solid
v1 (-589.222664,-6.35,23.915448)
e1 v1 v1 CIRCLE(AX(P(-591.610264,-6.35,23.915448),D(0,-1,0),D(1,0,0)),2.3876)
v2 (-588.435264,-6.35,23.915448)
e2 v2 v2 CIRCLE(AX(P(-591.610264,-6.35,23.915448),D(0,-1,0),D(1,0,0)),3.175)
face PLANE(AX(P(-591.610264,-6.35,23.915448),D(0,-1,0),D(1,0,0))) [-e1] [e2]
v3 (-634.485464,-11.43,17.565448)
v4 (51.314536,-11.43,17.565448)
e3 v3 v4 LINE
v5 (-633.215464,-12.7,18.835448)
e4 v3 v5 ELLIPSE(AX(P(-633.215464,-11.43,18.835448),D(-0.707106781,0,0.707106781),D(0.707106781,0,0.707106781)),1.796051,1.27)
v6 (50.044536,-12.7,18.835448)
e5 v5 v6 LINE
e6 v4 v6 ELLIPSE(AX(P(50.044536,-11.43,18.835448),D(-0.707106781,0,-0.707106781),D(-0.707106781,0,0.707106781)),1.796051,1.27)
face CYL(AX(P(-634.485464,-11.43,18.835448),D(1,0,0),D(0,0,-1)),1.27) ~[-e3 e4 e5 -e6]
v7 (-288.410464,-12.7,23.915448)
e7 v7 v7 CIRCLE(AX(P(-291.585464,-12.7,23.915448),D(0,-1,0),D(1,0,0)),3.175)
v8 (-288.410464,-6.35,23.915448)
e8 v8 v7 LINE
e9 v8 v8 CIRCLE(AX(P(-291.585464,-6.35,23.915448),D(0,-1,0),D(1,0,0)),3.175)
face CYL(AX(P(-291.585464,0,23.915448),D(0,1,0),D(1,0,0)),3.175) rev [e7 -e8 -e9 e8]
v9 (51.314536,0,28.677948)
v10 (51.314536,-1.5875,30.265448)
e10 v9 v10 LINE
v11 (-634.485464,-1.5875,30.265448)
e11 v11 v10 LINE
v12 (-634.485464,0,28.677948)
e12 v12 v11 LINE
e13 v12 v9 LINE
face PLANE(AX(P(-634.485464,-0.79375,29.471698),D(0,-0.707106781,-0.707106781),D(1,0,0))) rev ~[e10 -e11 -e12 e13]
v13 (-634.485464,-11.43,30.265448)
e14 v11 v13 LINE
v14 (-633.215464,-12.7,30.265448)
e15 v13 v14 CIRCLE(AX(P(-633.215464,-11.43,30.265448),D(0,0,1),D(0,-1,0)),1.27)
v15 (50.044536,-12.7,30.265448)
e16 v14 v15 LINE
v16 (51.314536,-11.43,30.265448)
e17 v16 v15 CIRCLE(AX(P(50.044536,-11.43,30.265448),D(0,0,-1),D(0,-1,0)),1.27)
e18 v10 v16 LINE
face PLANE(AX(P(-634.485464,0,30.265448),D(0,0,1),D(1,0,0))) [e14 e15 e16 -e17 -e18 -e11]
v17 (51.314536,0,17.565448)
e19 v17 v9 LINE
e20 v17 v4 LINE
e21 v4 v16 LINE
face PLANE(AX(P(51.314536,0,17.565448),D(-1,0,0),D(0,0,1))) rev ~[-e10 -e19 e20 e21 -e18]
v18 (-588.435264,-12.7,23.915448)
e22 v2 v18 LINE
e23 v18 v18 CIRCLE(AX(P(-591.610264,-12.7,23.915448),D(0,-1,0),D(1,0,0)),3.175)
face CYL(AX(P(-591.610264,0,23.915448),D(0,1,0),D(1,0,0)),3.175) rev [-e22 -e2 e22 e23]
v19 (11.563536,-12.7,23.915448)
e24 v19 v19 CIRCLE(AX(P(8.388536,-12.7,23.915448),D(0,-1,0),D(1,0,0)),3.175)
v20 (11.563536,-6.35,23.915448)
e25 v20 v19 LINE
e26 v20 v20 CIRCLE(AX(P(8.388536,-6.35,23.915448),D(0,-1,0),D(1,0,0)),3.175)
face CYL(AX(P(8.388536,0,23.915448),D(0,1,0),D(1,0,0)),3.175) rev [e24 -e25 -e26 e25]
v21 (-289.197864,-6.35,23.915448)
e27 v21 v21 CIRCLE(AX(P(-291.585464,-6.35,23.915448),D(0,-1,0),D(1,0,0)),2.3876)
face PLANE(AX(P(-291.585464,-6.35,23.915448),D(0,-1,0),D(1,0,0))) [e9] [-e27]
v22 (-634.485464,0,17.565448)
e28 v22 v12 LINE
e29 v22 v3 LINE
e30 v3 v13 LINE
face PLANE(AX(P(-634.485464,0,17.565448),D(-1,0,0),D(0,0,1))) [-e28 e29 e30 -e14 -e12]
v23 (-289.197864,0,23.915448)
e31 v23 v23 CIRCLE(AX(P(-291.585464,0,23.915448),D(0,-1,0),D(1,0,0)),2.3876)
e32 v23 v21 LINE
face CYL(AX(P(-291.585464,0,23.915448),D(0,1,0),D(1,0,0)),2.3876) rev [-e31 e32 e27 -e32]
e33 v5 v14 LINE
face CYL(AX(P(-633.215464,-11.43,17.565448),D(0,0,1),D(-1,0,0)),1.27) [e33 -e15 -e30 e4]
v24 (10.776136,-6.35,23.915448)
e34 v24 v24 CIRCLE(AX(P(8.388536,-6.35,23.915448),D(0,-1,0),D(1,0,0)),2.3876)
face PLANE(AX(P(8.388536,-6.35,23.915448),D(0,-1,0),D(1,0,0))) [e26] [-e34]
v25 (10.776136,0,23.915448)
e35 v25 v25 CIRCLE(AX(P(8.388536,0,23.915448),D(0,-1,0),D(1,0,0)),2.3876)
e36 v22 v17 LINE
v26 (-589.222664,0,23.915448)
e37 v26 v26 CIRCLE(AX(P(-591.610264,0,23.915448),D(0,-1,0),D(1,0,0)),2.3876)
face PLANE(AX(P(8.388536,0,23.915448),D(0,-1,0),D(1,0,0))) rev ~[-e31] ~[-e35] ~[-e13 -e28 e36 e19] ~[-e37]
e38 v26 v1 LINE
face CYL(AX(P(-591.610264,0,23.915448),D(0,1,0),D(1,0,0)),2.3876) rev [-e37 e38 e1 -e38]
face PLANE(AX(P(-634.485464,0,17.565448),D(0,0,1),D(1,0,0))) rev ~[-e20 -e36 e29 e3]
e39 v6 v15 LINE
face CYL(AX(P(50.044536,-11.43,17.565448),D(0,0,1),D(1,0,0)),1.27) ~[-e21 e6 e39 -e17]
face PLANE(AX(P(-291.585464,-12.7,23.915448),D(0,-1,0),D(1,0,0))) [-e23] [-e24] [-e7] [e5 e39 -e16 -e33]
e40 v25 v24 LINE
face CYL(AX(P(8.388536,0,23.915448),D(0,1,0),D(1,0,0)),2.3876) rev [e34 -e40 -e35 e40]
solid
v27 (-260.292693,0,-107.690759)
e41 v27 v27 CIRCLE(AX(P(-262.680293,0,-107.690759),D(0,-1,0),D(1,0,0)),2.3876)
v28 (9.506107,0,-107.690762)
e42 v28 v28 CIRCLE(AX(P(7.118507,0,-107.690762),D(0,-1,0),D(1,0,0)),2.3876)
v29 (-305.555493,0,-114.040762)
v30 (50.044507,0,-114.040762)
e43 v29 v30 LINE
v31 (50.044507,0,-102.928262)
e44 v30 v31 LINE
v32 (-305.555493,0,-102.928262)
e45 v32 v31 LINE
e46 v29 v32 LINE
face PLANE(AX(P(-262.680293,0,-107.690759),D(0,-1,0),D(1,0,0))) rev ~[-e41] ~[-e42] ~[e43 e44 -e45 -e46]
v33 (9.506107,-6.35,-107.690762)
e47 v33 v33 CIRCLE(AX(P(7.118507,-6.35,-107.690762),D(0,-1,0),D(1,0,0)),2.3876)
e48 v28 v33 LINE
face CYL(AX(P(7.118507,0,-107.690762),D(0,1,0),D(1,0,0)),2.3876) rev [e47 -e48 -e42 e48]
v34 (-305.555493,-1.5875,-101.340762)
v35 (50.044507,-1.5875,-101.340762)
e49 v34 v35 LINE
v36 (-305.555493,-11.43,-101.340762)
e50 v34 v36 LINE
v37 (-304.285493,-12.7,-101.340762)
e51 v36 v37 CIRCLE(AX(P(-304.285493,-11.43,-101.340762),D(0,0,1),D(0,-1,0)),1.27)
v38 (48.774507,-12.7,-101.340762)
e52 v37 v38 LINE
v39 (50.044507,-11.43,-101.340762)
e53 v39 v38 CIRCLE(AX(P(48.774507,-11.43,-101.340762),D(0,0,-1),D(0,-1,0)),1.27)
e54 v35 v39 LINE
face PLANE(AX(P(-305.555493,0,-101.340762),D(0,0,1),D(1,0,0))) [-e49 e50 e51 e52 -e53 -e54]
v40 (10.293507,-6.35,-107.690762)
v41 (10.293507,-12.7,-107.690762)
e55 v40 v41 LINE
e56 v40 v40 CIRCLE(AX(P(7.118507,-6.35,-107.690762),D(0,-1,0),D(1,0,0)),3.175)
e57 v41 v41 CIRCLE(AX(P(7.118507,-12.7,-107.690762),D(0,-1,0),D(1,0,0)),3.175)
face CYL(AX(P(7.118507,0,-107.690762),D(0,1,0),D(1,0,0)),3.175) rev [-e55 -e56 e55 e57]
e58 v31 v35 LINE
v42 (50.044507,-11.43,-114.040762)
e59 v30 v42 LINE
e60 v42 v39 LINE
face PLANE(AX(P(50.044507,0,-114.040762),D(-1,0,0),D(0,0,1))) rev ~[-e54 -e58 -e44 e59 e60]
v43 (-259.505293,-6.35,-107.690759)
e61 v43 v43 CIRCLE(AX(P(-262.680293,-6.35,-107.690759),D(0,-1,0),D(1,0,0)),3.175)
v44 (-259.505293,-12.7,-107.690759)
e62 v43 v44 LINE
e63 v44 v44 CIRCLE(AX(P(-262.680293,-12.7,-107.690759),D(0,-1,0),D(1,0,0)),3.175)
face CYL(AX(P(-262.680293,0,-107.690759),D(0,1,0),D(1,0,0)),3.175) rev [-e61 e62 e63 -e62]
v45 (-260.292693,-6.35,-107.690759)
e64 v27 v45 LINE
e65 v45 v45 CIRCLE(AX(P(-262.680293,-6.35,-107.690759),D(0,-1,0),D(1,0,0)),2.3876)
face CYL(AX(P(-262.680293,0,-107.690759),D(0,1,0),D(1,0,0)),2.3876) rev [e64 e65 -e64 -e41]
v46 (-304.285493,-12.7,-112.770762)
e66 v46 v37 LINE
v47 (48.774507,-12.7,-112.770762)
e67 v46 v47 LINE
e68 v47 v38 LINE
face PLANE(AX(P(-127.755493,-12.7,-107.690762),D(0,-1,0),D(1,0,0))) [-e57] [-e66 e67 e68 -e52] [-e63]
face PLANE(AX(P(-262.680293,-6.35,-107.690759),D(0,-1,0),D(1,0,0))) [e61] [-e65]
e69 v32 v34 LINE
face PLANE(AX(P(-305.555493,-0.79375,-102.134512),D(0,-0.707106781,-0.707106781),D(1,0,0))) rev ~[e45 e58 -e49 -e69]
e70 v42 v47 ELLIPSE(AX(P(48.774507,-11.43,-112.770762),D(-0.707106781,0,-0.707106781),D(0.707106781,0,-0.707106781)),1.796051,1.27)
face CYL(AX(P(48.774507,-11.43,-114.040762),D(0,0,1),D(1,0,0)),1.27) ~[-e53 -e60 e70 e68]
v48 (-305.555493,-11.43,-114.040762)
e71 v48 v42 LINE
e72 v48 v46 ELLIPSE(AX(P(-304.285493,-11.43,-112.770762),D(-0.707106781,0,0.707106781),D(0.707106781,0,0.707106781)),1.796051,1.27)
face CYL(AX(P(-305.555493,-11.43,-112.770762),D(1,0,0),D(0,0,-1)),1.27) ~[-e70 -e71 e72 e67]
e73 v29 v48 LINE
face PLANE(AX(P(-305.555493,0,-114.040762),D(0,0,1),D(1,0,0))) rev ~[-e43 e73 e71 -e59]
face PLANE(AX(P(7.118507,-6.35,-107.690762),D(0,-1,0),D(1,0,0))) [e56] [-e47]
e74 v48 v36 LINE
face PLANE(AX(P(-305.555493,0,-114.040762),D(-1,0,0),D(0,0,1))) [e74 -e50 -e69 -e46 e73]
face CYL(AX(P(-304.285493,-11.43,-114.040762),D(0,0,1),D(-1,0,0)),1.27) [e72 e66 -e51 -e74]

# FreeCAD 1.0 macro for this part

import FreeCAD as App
import Part
import Sketcher

V = App.Vector
Q = App.Units.Quantity


def edges_at(feature, points):
    """Names of the edges that pass closest to the given points."""
    edges = feature.Shape.Edges
    near = lambda p: min(range(len(edges)), key=lambda i: edges[i].distToShape(Part.Vertex(*p))[0])
    return sorted({f"Edge{near(p) + 1}" for p in points})


def add_polygon(sketch, points):
    """Adds a closed chain of lines whose ends are joined by coincident constraints."""
    first, n = sketch.GeometryCount, len(points)
    for a, b in zip(points, points[1:] + points[:1]):
        sketch.addGeometry(Part.LineSegment(App.Vector(*a, 0), App.Vector(*b, 0)), False)
    for i in range(n):
        sketch.addConstraint(Sketcher.Constraint("Coincident", first + i, 2, first + (i + 1) % n, 1))

doc = App.newDocument("Part")
body = doc.addObject("PartDesign::Body", "Body")

sketch1 = body.newObject("Sketcher::SketchObject", "Sketch")
sketch1.AttachmentSupport = (doc.getObject("XZ_Plane"), [""])
sketch1.MapMode = "FlatFace"
add_polygon(sketch1, [(-634.485464, 30.265448), (-634.485464, 17.565448), (51.314536, 17.565448), (51.314536, 30.265448)])
sketch1.addGeometry(Part.Circle(V(-591.610264, 23.915448, 0), V(0, 0, 1), 3.175), False)
sketch1.addGeometry(Part.Circle(V(-291.585464, 23.915448, 0), V(0, 0, 1), 3.175), False)
sketch1.addGeometry(Part.Circle(V(8.388536, 23.915448, 0), V(0, 0, 1), 3.175), False)
sketch1.addConstraint(Sketcher.Constraint("Vertical", 0))
sketch1.addConstraint(Sketcher.Constraint("Horizontal", 1))
sketch1.addConstraint(Sketcher.Constraint("Vertical", 2))
sketch1.addConstraint(Sketcher.Constraint("Horizontal", 3))
sketch1.addConstraint(Sketcher.Constraint("Equal", 4, 5))
sketch1.addConstraint(Sketcher.Constraint("Equal", 5, 6))
sketch1.addConstraint(Sketcher.Constraint("Horizontal", 4, 3, 5, 3))
sketch1.addConstraint(Sketcher.Constraint("Horizontal", 5, 3, 6, 3))
sketch1.addConstraint(Sketcher.Constraint("Diameter", 4, Q("0.25 in")))
sketch1.addConstraint(Sketcher.Constraint("DistanceX", 1, 1, 1, 2, Q("27 in")))
sketch1.addConstraint(Sketcher.Constraint("DistanceY", 0, 2, 0, 1, Q("0.5 in")))
sketch1.addConstraint(Sketcher.Constraint("DistanceX", 0, 2, 5, 3, Q("13.5 in")))
sketch1.addConstraint(Sketcher.Constraint("DistanceX", 5, 3, 6, 3, Q("11.81 in")))
sketch1.addConstraint(Sketcher.Constraint("DistanceY", 0, 2, 4, 3, Q("0.25 in")))
sketch1.addConstraint(Sketcher.Constraint("DistanceX", 4, 3, 5, 3, Q("11.812 in")))
sketch1.addConstraint(Sketcher.Constraint("DistanceY", -1, 1, 4, 3, 23.915448))
sketch1.addConstraint(Sketcher.Constraint("DistanceX", 4, 3, -1, 1, 591.610264))
pad1 = body.newObject("PartDesign::Pad", "Pad")
pad1.Profile = sketch1
pad1.Length = Q("0.5 in")

sketch2 = body.newObject("Sketcher::SketchObject", "Sketch001")
sketch2.AttachmentSupport = (doc.getObject("XZ_Plane"), [""])
sketch2.MapMode = "FlatFace"
sketch2.addGeometry(Part.Circle(V(8.388536, 23.915448, 0), V(0, 0, 1), 3.175), False)
sketch2.addGeometry(Part.Circle(V(8.388536, 23.915448, 0), V(0, 0, 1), 2.3876), False)
sketch2.addGeometry(Part.Circle(V(-291.585464, 23.915448, 0), V(0, 0, 1), 3.175), False)
sketch2.addGeometry(Part.Circle(V(-291.585464, 23.915448, 0), V(0, 0, 1), 2.3876), False)
sketch2.addGeometry(Part.Circle(V(-591.610264, 23.915448, 0), V(0, 0, 1), 3.175), False)
sketch2.addGeometry(Part.Circle(V(-591.610264, 23.915448, 0), V(0, 0, 1), 2.3876), False)
sketch2.addConstraint(Sketcher.Constraint("Coincident", 1, 3, 0, 3))
sketch2.addConstraint(Sketcher.Constraint("Coincident", 3, 3, 2, 3))
sketch2.addConstraint(Sketcher.Constraint("Coincident", 5, 3, 4, 3))
sketch2.addConstraint(Sketcher.Constraint("Equal", 0, 2))
sketch2.addConstraint(Sketcher.Constraint("Equal", 1, 3))
sketch2.addConstraint(Sketcher.Constraint("Equal", 2, 4))
sketch2.addConstraint(Sketcher.Constraint("Equal", 3, 5))
sketch2.addConstraint(Sketcher.Constraint("Horizontal", 1, 3, 2, 3))
sketch2.addConstraint(Sketcher.Constraint("Horizontal", 3, 3, 4, 3))
sketch2.addConstraint(Sketcher.Constraint("Diameter", 0, Q("0.25 in")))
sketch2.addConstraint(Sketcher.Constraint("Diameter", 1, Q("0.188 in")))
sketch2.addConstraint(Sketcher.Constraint("DistanceX", 2, 3, 0, 3, Q("11.81 in")))
sketch2.addConstraint(Sketcher.Constraint("DistanceX", 4, 3, 2, 3, Q("11.812 in")))
sketch2.addConstraint(Sketcher.Constraint("DistanceY", -1, 1, 0, 3, 23.915448))
sketch2.addConstraint(Sketcher.Constraint("DistanceX", -1, 1, 0, 3, 8.388536))
pad2 = body.newObject("PartDesign::Pad", "Pad001")
pad2.Profile = sketch2
pad2.Length = Q("0.25 in")
doc.recompute()

fillet = body.newObject("PartDesign::Fillet", "Fillet")
fillet.Base = (pad2, edges_at(pad2, [(51.315, -12.7, 23.915), (-634.485, -12.7, 23.915), (-291.585, -12.7, 17.565)]))
fillet.Radius = Q("0.05 in")
doc.recompute()

chamfer = body.newObject("PartDesign::Chamfer", "Chamfer")
chamfer.Base = (fillet, edges_at(fillet, [(-291.585, 0, 30.265)]))
chamfer.Size = Q("0.0625 in")
body2 = doc.addObject("PartDesign::Body", "Body001")

sketch3 = body2.newObject("Sketcher::SketchObject", "Sketch002")
sketch3.AttachmentSupport = (doc.getObject("XZ_Plane001"), [""])
sketch3.MapMode = "FlatFace"
add_polygon(sketch3, [(-305.555493, -101.340762), (-305.555493, -114.040762), (50.044507, -114.040762), (50.044507, -101.340762)])
sketch3.addGeometry(Part.Circle(V(7.118507, -107.690762, 0), V(0, 0, 1), 3.175), False)
sketch3.addGeometry(Part.Circle(V(-262.680293, -107.690759, 0), V(0, 0, 1), 3.175), False)
sketch3.addConstraint(Sketcher.Constraint("Vertical", 0))
sketch3.addConstraint(Sketcher.Constraint("Horizontal", 1))
sketch3.addConstraint(Sketcher.Constraint("Vertical", 2))
sketch3.addConstraint(Sketcher.Constraint("Horizontal", 3))
sketch3.addConstraint(Sketcher.Constraint("Equal", 4, 5))
sketch3.addConstraint(Sketcher.Constraint("Diameter", 4, Q("0.25 in")))
sketch3.addConstraint(Sketcher.Constraint("DistanceX", 1, 1, 1, 2, Q("14 in")))
sketch3.addConstraint(Sketcher.Constraint("DistanceY", 0, 2, 0, 1, Q("0.5 in")))
sketch3.addConstraint(Sketcher.Constraint("DistanceY", 0, 2, 5, 3, Q("0.2500001 in")))
sketch3.addConstraint(Sketcher.Constraint("DistanceX", 0, 2, 4, 3, Q("12.31 in")))
sketch3.addConstraint(Sketcher.Constraint("DistanceY", 0, 2, 4, 3, Q("0.25 in")))
sketch3.addConstraint(Sketcher.Constraint("DistanceX", 5, 3, 4, 3, Q("10.622 in")))
sketch3.addConstraint(Sketcher.Constraint("DistanceY", 5, 3, -1, 1, 107.690759))
sketch3.addConstraint(Sketcher.Constraint("DistanceX", -1, 1, 4, 3, 7.118507))
pad3 = body2.newObject("PartDesign::Pad", "Pad002")
pad3.Profile = sketch3
pad3.Length = Q("0.5 in")

sketch4 = body2.newObject("Sketcher::SketchObject", "Sketch003")
sketch4.AttachmentSupport = (doc.getObject("XZ_Plane001"), [""])
sketch4.MapMode = "FlatFace"
sketch4.addGeometry(Part.Circle(V(-262.680293, -107.690759, 0), V(0, 0, 1), 3.175), False)
sketch4.addGeometry(Part.Circle(V(-262.680293, -107.690759, 0), V(0, 0, 1), 2.3876), False)
sketch4.addGeometry(Part.Circle(V(7.118507, -107.690762, 0), V(0, 0, 1), 3.175), False)
sketch4.addGeometry(Part.Circle(V(7.118507, -107.690762, 0), V(0, 0, 1), 2.3876), False)
sketch4.addConstraint(Sketcher.Constraint("Coincident", 1, 3, 0, 3))
sketch4.addConstraint(Sketcher.Constraint("Coincident", 3, 3, 2, 3))
sketch4.addConstraint(Sketcher.Constraint("Equal", 0, 2))
sketch4.addConstraint(Sketcher.Constraint("Equal", 1, 3))
sketch4.addConstraint(Sketcher.Constraint("Diameter", 0, Q("0.25 in")))
sketch4.addConstraint(Sketcher.Constraint("Diameter", 1, Q("0.188 in")))
sketch4.addConstraint(Sketcher.Constraint("DistanceX", 0, 3, 2, 3, Q("10.622 in")))
sketch4.addConstraint(Sketcher.Constraint("DistanceY", 0, 3, -1, 1, 107.690759))
sketch4.addConstraint(Sketcher.Constraint("DistanceX", 0, 3, -1, 1, 262.680293))
sketch4.addConstraint(Sketcher.Constraint("DistanceY", 2, 3, -1, 1, 107.690762))
pad4 = body2.newObject("PartDesign::Pad", "Pad003")
pad4.Profile = sketch4
pad4.Length = Q("0.25 in")
doc.recompute()

fillet2 = body2.newObject("PartDesign::Fillet", "Fillet001")
fillet2.Base = (pad4, edges_at(pad4, [(-127.755, -12.7, -114.041), (-305.555, -12.7, -107.691), (50.045, -12.7, -107.691)]))
fillet2.Radius = Q("0.05 in")
doc.recompute()

chamfer2 = body2.newObject("PartDesign::Chamfer", "Chamfer001")
chamfer2.Base = (fillet2, edges_at(fillet2, [(-127.755, 0, -101.341)]))
chamfer2.Size = Q("0.0625 in")

doc.recompute()
